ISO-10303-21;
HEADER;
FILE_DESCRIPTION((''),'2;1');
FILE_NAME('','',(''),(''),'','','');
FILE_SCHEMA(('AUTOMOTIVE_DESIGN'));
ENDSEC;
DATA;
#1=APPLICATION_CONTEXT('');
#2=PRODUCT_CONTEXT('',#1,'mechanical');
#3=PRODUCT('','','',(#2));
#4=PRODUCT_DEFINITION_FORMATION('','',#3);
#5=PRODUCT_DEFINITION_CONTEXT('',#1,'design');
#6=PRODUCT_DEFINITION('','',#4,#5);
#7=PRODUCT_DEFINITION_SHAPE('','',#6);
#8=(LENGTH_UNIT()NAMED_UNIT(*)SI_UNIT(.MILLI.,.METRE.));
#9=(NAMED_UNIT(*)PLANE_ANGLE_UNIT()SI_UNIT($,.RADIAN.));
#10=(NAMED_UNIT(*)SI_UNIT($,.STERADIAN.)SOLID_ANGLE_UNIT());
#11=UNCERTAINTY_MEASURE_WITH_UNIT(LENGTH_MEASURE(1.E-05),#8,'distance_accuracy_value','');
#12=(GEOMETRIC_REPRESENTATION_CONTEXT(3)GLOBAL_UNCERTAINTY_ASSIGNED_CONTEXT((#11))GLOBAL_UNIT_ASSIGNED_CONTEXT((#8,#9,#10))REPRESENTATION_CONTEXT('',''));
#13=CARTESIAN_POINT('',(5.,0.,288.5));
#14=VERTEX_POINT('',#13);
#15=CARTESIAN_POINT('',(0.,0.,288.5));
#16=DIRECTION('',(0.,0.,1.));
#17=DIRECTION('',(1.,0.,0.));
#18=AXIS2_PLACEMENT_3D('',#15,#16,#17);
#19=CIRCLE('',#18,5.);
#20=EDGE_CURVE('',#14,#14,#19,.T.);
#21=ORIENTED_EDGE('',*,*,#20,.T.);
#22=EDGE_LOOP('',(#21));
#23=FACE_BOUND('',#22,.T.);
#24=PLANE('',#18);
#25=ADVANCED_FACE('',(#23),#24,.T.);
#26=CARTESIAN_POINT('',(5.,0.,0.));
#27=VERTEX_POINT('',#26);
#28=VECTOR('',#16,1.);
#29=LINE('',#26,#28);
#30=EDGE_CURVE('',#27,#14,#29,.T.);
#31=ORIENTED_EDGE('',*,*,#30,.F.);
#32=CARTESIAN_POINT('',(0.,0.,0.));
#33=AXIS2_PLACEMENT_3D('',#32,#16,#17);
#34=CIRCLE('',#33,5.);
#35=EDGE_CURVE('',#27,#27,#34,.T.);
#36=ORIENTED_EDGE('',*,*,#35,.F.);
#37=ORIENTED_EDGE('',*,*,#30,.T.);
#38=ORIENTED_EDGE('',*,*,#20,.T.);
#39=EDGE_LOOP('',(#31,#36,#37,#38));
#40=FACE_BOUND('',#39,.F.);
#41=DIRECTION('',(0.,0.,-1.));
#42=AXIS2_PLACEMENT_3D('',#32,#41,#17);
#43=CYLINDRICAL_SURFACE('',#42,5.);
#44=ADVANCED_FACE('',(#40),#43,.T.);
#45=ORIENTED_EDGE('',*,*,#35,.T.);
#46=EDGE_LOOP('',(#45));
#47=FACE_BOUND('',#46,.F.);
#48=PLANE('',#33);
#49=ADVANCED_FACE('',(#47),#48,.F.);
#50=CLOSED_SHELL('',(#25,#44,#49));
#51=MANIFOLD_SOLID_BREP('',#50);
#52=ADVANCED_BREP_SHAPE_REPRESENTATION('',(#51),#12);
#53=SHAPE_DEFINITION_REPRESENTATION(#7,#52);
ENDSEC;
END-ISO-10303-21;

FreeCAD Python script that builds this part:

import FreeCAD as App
import Part
import Sketcher
from FreeCAD import Vector

doc = App.newDocument("Part")
body = doc.addObject("PartDesign::Body", "Body")

# Sketch on XY plane
sketch1 = doc.addObject("Sketcher::SketchObject", "Sketch")
body.addObject(sketch1)
sketch1.AttachmentSupport = (doc.XY_Plane, [""])
sketch1.MapMode = "FlatFace"
sketch1.addGeometry(Part.Circle(Vector(0, 0, 0), Vector(0, 0, 1), 5), False)
sketch1.addConstraint([
    Sketcher.Constraint("Coincident", 0, 3, -1, 1),
    Sketcher.Constraint("Diameter", 0, 10.0),
])
pad1 = doc.addObject("PartDesign::Pad", "Pad")
body.addObject(pad1)
pad1.Profile = sketch1
pad1.Length = 288.5

doc.recompute()
